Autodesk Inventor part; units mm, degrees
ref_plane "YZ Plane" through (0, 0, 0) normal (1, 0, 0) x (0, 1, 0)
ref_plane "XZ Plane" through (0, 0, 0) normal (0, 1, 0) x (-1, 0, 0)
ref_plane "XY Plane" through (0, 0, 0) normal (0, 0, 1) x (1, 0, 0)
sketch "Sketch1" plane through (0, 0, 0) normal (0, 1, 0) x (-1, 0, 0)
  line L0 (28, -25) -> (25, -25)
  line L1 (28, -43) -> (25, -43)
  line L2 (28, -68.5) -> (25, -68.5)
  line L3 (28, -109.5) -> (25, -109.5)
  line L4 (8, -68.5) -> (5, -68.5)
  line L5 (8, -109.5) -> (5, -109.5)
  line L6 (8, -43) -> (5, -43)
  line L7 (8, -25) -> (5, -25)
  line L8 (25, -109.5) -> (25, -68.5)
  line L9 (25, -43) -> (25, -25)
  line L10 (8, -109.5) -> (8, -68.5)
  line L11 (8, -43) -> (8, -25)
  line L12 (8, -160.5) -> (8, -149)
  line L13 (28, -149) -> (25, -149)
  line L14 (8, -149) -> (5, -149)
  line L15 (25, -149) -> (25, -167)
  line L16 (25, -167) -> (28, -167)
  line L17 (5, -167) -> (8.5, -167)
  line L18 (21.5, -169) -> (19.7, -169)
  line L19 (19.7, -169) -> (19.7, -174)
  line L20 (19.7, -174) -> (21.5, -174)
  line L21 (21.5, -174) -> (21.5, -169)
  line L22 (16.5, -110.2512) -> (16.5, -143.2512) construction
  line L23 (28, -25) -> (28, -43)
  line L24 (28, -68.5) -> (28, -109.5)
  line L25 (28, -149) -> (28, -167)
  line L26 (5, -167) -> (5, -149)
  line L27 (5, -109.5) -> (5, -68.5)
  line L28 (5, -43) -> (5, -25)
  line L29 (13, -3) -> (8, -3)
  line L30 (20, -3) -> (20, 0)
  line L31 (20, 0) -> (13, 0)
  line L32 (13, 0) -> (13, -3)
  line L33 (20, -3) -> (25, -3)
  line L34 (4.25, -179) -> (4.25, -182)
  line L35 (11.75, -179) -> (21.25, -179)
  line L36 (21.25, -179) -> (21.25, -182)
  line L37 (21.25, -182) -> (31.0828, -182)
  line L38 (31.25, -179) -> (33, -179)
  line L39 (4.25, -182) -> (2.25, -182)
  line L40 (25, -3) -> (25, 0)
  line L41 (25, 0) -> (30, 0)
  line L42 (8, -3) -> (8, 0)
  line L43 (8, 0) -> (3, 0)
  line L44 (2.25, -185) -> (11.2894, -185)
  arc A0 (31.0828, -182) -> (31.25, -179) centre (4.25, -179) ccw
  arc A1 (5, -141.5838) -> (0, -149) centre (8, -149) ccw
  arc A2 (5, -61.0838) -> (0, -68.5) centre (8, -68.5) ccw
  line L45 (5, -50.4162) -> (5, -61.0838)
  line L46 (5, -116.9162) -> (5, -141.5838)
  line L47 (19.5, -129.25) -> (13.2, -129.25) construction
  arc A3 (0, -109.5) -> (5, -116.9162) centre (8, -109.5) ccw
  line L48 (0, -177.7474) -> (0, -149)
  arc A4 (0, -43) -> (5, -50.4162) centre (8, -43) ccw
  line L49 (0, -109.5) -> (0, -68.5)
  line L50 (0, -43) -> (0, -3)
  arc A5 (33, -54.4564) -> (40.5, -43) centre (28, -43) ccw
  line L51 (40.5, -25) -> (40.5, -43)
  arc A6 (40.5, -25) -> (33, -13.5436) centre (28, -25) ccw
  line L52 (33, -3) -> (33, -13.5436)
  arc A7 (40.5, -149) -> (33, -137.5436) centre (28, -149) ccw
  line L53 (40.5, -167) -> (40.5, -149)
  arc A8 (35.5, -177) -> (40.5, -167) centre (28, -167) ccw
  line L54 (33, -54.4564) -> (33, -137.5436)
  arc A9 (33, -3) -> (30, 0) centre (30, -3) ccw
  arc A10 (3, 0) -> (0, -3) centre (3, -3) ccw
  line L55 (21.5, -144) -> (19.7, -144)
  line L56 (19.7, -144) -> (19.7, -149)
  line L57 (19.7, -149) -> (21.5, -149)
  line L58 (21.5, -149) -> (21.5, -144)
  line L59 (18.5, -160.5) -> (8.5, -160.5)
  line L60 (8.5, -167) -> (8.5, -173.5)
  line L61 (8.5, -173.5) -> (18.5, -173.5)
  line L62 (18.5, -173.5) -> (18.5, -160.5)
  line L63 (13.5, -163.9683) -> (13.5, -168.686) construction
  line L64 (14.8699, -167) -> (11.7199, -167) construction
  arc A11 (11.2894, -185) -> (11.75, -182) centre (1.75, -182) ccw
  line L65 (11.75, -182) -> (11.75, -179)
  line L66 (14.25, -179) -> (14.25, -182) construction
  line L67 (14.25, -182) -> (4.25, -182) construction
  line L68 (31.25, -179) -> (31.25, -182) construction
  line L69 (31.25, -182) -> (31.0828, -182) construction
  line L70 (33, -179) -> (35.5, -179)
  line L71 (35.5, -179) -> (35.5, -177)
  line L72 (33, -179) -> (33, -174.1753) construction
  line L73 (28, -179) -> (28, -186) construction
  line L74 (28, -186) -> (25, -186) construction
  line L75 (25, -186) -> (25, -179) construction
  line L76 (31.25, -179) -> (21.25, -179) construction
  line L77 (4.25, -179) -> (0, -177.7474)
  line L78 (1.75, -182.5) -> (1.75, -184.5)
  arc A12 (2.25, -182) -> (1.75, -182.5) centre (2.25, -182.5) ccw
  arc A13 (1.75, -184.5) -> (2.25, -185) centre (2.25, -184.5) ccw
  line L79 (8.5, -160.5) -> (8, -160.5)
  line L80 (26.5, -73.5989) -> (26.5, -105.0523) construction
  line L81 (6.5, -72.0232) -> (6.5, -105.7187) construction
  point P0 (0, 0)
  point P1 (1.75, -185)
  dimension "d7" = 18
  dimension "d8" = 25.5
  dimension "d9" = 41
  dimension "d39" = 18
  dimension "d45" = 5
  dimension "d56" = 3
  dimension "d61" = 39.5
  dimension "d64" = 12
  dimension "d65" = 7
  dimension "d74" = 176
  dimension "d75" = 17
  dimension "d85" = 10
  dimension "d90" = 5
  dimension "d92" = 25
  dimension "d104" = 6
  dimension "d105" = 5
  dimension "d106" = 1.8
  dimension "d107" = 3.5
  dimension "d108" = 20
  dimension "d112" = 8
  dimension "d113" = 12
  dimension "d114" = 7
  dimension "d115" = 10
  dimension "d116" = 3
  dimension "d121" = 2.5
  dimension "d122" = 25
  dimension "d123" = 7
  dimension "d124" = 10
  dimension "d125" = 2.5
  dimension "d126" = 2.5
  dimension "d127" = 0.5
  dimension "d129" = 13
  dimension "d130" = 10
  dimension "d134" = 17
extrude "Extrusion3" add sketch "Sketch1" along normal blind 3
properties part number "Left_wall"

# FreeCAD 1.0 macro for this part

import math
import FreeCAD as App
import Part
import Sketcher

V = App.Vector

doc = App.newDocument("Part")
body = doc.addObject("PartDesign::Body", "Body")

sketch1 = doc.addObject("Sketcher::SketchObject", "Sketch")
body.addObject(sketch1)
sketch1.AttachmentSupport = (doc.XZ_Plane, [""])
sketch1.MapMode = "FlatFace"
sketch1.addGeometry([
    Part.LineSegment(V(-13, 0, 0), V(-13, -3, 0)),
    Part.LineSegment(V(-13, -3, 0), V(-8, -3, 0)),
    Part.LineSegment(V(-8, -3, 0), V(-8, 0, 0)),
    Part.LineSegment(V(-8, 0, 0), V(-3, 0, 0)),
    Part.ArcOfCircle(Part.Circle(V(-3, -3, 0), V(0, 0, 1), 3), math.radians(0), math.radians(90)),
    Part.LineSegment(V(0, -3, 0), V(0, -43, 0)),
    Part.ArcOfCircle(Part.Circle(V(-8, -43, 0), V(0, 0, 1), 8), math.radians(-67.975691), math.radians(0)),
    Part.LineSegment(V(-5, -50.4162, 0), V(-5, -61.0838, 0)),
    Part.ArcOfCircle(Part.Circle(V(-8, -68.5, 0), V(0, 0, 1), 8.000001), math.radians(0), math.radians(67.975691)),
    Part.LineSegment(V(0, -68.5, 0), V(0, -109.5, 0)),
    Part.ArcOfCircle(Part.Circle(V(-8, -109.5, 0), V(0, 0, 1), 8), math.radians(-67.975691), math.radians(0)),
    Part.LineSegment(V(-5, -116.9162, 0), V(-5, -141.5838, 0)),
    Part.ArcOfCircle(Part.Circle(V(-8, -149, 0), V(0, 0, 1), 8.000001), math.radians(0), math.radians(67.975691)),
    Part.LineSegment(V(0, -149, 0), V(0, -177.7474, 0)),
    Part.LineSegment(V(0, -177.7474, 0), V(-4.25, -179, 0)),
    Part.LineSegment(V(-4.25, -179, 0), V(-4.25, -182, 0)),
    Part.LineSegment(V(-4.25, -182, 0), V(-2.25, -182, 0)),
    Part.ArcOfCircle(Part.Circle(V(-2.25, -182.5, 0), V(0, 0, 1), 0.5), math.radians(0), math.radians(90)),
    Part.LineSegment(V(-1.75, -182.5, 0), V(-1.75, -184.5, 0)),
    Part.ArcOfCircle(Part.Circle(V(-2.25, -184.5, 0), V(0, 0, 1), 0.5), math.radians(-90), math.radians(0)),
    Part.LineSegment(V(-2.25, -185, 0), V(-11.2894, -185, 0)),
    Part.ArcOfCircle(Part.Circle(V(-1.75, -182, 0), V(0, 0, 1), 10.000008), math.radians(180), math.radians(197.457589)),
    Part.LineSegment(V(-11.75, -182, 0), V(-11.75, -179, 0)),
    Part.LineSegment(V(-11.75, -179, 0), V(-21.25, -179, 0)),
    Part.LineSegment(V(-21.25, -179, 0), V(-21.25, -182, 0)),
    Part.LineSegment(V(-21.25, -182, 0), V(-31.0828, -182, 0)),
    Part.ArcOfCircle(Part.Circle(V(-4.244969, -178.999579, 0), V(0, 0, 1), 27.005031), math.radians(-179.999107), math.radians(-173.620924)),
    Part.LineSegment(V(-31.25, -179, 0), V(-35.5, -179, 0)),
    Part.LineSegment(V(-35.5, -179, 0), V(-35.5, -177, 0)),
    Part.ArcOfCircle(Part.Circle(V(-28, -167, 0), V(0, 0, 1), 12.5), math.radians(180), math.radians(233.130102)),
    Part.LineSegment(V(-40.5, -167, 0), V(-40.5, -149, 0)),
    Part.ArcOfCircle(Part.Circle(V(-28, -149, 0), V(0, 0, 1), 12.5), math.radians(113.57825), math.radians(180)),
    Part.LineSegment(V(-33, -137.5436, 0), V(-33, -54.4564, 0)),
    Part.ArcOfCircle(Part.Circle(V(-28, -43, 0), V(0, 0, 1), 12.499964), math.radians(180), math.radians(246.42175)),
    Part.LineSegment(V(-40.5, -43, 0), V(-40.5, -25, 0)),
    Part.ArcOfCircle(Part.Circle(V(-28, -25, 0), V(0, 0, 1), 12.5), math.radians(113.57825), math.radians(180)),
    Part.LineSegment(V(-33, -13.5436, 0), V(-33, -3, 0)),
    Part.ArcOfCircle(Part.Circle(V(-30, -3, 0), V(0, 0, 1), 3), math.radians(90), math.radians(180)),
    Part.LineSegment(V(-30, 0, 0), V(-25, 0, 0)),
    Part.LineSegment(V(-25, 0, 0), V(-25, -3, 0)),
    Part.LineSegment(V(-25, -3, 0), V(-20, -3, 0)),
    Part.LineSegment(V(-20, -3, 0), V(-20, 0, 0)),
    Part.LineSegment(V(-20, 0, 0), V(-13, 0, 0)),
    Part.LineSegment(V(-8, -149, 0), V(-8, -160.5, 0)),
    Part.LineSegment(V(-8, -160.5, 0), V(-18.5, -160.5, 0)),
    Part.LineSegment(V(-18.5, -160.5, 0), V(-18.5, -173.5, 0)),
    Part.LineSegment(V(-18.5, -173.5, 0), V(-8.5, -173.5, 0)),
    Part.LineSegment(V(-8.5, -173.5, 0), V(-8.5, -167, 0)),
    Part.LineSegment(V(-8.5, -167, 0), V(-5, -167, 0)),
    Part.LineSegment(V(-5, -167, 0), V(-5, -149, 0)),
    Part.LineSegment(V(-5, -149, 0), V(-8, -149, 0)),
    Part.LineSegment(V(-19.7, -169, 0), V(-21.5, -169, 0)),
    Part.LineSegment(V(-21.5, -169, 0), V(-21.5, -174, 0)),
    Part.LineSegment(V(-21.5, -174, 0), V(-19.7, -174, 0)),
    Part.LineSegment(V(-19.7, -174, 0), V(-19.7, -169, 0)),
    Part.LineSegment(V(-19.7, -144, 0), V(-21.5, -144, 0)),
    Part.LineSegment(V(-21.5, -144, 0), V(-21.5, -149, 0)),
    Part.LineSegment(V(-21.5, -149, 0), V(-19.7, -149, 0)),
    Part.LineSegment(V(-19.7, -149, 0), V(-19.7, -144, 0)),
    Part.LineSegment(V(-25, -149, 0), V(-28, -149, 0)),
    Part.LineSegment(V(-28, -149, 0), V(-28, -167, 0)),
    Part.LineSegment(V(-28, -167, 0), V(-25, -167, 0)),
    Part.LineSegment(V(-25, -167, 0), V(-25, -149, 0)),
    Part.LineSegment(V(-5, -68.5, 0), V(-8, -68.5, 0)),
    Part.LineSegment(V(-8, -68.5, 0), V(-8, -109.5, 0)),
    Part.LineSegment(V(-8, -109.5, 0), V(-5, -109.5, 0)),
    Part.LineSegment(V(-5, -109.5, 0), V(-5, -68.5, 0)),
    Part.LineSegment(V(-8, -25, 0), V(-8, -43, 0)),
    Part.LineSegment(V(-8, -43, 0), V(-5, -43, 0)),
    Part.LineSegment(V(-5, -43, 0), V(-5, -25, 0)),
    Part.LineSegment(V(-5, -25, 0), V(-8, -25, 0)),
    Part.LineSegment(V(-25, -68.5, 0), V(-28, -68.5, 0)),
    Part.LineSegment(V(-28, -68.5, 0), V(-28, -109.5, 0)),
    Part.LineSegment(V(-28, -109.5, 0), V(-25, -109.5, 0)),
    Part.LineSegment(V(-25, -109.5, 0), V(-25, -68.5, 0)),
    Part.LineSegment(V(-25, -25, 0), V(-28, -25, 0)),
    Part.LineSegment(V(-28, -25, 0), V(-28, -43, 0)),
    Part.LineSegment(V(-28, -43, 0), V(-25, -43, 0)),
    Part.LineSegment(V(-25, -43, 0), V(-25, -25, 0)),
], False)
sketch1.addConstraint([
    Sketcher.Constraint("Coincident", 0, 2, 1, 1),
    Sketcher.Constraint("Coincident", 1, 2, 2, 1),
    Sketcher.Constraint("Coincident", 2, 2, 3, 1),
    Sketcher.Constraint("Tangent", 3, 2, 4, 2),
    Sketcher.Constraint("Tangent", 4, 1, 5, 1),
    Sketcher.Constraint("Tangent", 5, 2, 6, 2),
    Sketcher.Constraint("Coincident", 6, 1, 7, 1),
    Sketcher.Constraint("Coincident", 7, 2, 8, 2),
    Sketcher.Constraint("Tangent", 8, 1, 9, 1),
    Sketcher.Constraint("Tangent", 9, 2, 10, 2),
    Sketcher.Constraint("Coincident", 10, 1, 11, 1),
    Sketcher.Constraint("Coincident", 11, 2, 12, 2),
    Sketcher.Constraint("Tangent", 12, 1, 13, 1),
    Sketcher.Constraint("Coincident", 13, 2, 14, 1),
    Sketcher.Constraint("Coincident", 14, 2, 15, 1),
    Sketcher.Constraint("Coincident", 15, 2, 16, 1),
    Sketcher.Constraint("Tangent", 16, 2, 17, 2),
    Sketcher.Constraint("Tangent", 17, 1, 18, 1),
    Sketcher.Constraint("Tangent", 18, 2, 19, 2),
    Sketcher.Constraint("Tangent", 19, 1, 20, 1),
    Sketcher.Constraint("Coincident", 20, 2, 21, 2),
    Sketcher.Constraint("Tangent", 21, 1, 22, 1),
    Sketcher.Constraint("Coincident", 22, 2, 23, 1),
    Sketcher.Constraint("Coincident", 23, 2, 24, 1),
    Sketcher.Constraint("Coincident", 24, 2, 25, 1),
    Sketcher.Constraint("Coincident", 25, 2, 26, 2),
    Sketcher.Constraint("Coincident", 26, 1, 27, 1),
    Sketcher.Constraint("Coincident", 27, 2, 28, 1),
    Sketcher.Constraint("Coincident", 28, 2, 29, 2),
    Sketcher.Constraint("Tangent", 29, 1, 30, 1),
    Sketcher.Constraint("Tangent", 30, 2, 31, 2),
    Sketcher.Constraint("Coincident", 31, 1, 32, 1),
    Sketcher.Constraint("Coincident", 32, 2, 33, 2),
    Sketcher.Constraint("Tangent", 33, 1, 34, 1),
    Sketcher.Constraint("Tangent", 34, 2, 35, 2),
    Sketcher.Constraint("Coincident", 35, 1, 36, 1),
    Sketcher.Constraint("Tangent", 36, 2, 37, 2),
    Sketcher.Constraint("Tangent", 37, 1, 38, 1),
    Sketcher.Constraint("Coincident", 38, 2, 39, 1),
    Sketcher.Constraint("Coincident", 39, 2, 40, 1),
    Sketcher.Constraint("Coincident", 40, 2, 41, 1),
    Sketcher.Constraint("Coincident", 41, 2, 42, 1),
    Sketcher.Constraint("Coincident", 42, 2, 0, 1),
    Sketcher.Constraint("Coincident", 43, 2, 44, 1),
    Sketcher.Constraint("Coincident", 44, 2, 45, 1),
    Sketcher.Constraint("Coincident", 45, 2, 46, 1),
    Sketcher.Constraint("Coincident", 46, 2, 47, 1),
    Sketcher.Constraint("Coincident", 47, 2, 48, 1),
    Sketcher.Constraint("Coincident", 48, 2, 49, 1),
    Sketcher.Constraint("Coincident", 49, 2, 50, 1),
    Sketcher.Constraint("Coincident", 50, 2, 43, 1),
    Sketcher.Constraint("Coincident", 51, 2, 52, 1),
    Sketcher.Constraint("Coincident", 52, 2, 53, 1),
    Sketcher.Constraint("Coincident", 53, 2, 54, 1),
    Sketcher.Constraint("Coincident", 54, 2, 51, 1),
    Sketcher.Constraint("Coincident", 55, 2, 56, 1),
    Sketcher.Constraint("Coincident", 56, 2, 57, 1),
    Sketcher.Constraint("Coincident", 57, 2, 58, 1),
    Sketcher.Constraint("Coincident", 58, 2, 55, 1),
    Sketcher.Constraint("Coincident", 59, 2, 60, 1),
    Sketcher.Constraint("Coincident", 60, 2, 61, 1),
    Sketcher.Constraint("Coincident", 61, 2, 62, 1),
    Sketcher.Constraint("Coincident", 62, 2, 59, 1),
    Sketcher.Constraint("Coincident", 63, 2, 64, 1),
    Sketcher.Constraint("Coincident", 64, 2, 65, 1),
    Sketcher.Constraint("Coincident", 65, 2, 66, 1),
    Sketcher.Constraint("Coincident", 66, 2, 63, 1),
    Sketcher.Constraint("Coincident", 67, 2, 68, 1),
    Sketcher.Constraint("Coincident", 68, 2, 69, 1),
    Sketcher.Constraint("Coincident", 69, 2, 70, 1),
    Sketcher.Constraint("Coincident", 70, 2, 67, 1),
    Sketcher.Constraint("Coincident", 71, 2, 72, 1),
    Sketcher.Constraint("Coincident", 72, 2, 73, 1),
    Sketcher.Constraint("Coincident", 73, 2, 74, 1),
    Sketcher.Constraint("Coincident", 74, 2, 71, 1),
    Sketcher.Constraint("Coincident", 75, 2, 76, 1),
    Sketcher.Constraint("Coincident", 76, 2, 77, 1),
    Sketcher.Constraint("Coincident", 77, 2, 78, 1),
    Sketcher.Constraint("Coincident", 78, 2, 75, 1),
    Sketcher.Constraint("Vertical", 0),
    Sketcher.Constraint("Horizontal", 1),
    Sketcher.Constraint("Vertical", 2),
    Sketcher.Constraint("Horizontal", 3),
    Sketcher.Constraint("Vertical", 5),
    Sketcher.Constraint("Vertical", 7),
    Sketcher.Constraint("Vertical", 9),
    Sketcher.Constraint("Vertical", 11),
    Sketcher.Constraint("Vertical", 13),
    Sketcher.Constraint("Vertical", 15),
    Sketcher.Constraint("Horizontal", 16),
    Sketcher.Constraint("Vertical", 18),
    Sketcher.Constraint("Horizontal", 20),
    Sketcher.Constraint("Vertical", 22),
    Sketcher.Constraint("Horizontal", 23),
    Sketcher.Constraint("Vertical", 24),
    Sketcher.Constraint("Horizontal", 25),
    Sketcher.Constraint("Horizontal", 27),
    Sketcher.Constraint("Vertical", 28),
    Sketcher.Constraint("Vertical", 30),
    Sketcher.Constraint("Vertical", 32),
    Sketcher.Constraint("Vertical", 34),
    Sketcher.Constraint("Vertical", 36),
    Sketcher.Constraint("Horizontal", 38),
    Sketcher.Constraint("Vertical", 39),
    Sketcher.Constraint("Horizontal", 40),
    Sketcher.Constraint("Vertical", 41),
    Sketcher.Constraint("Horizontal", 42),
    Sketcher.Constraint("Vertical", 43),
    Sketcher.Constraint("Horizontal", 44),
    Sketcher.Constraint("Vertical", 45),
    Sketcher.Constraint("Horizontal", 46),
    Sketcher.Constraint("Vertical", 47),
    Sketcher.Constraint("Horizontal", 48),
    Sketcher.Constraint("Vertical", 49),
    Sketcher.Constraint("Horizontal", 50),
    Sketcher.Constraint("Horizontal", 51),
    Sketcher.Constraint("Vertical", 52),
    Sketcher.Constraint("Horizontal", 53),
    Sketcher.Constraint("Vertical", 54),
    Sketcher.Constraint("Horizontal", 55),
    Sketcher.Constraint("Vertical", 56),
    Sketcher.Constraint("Horizontal", 57),
    Sketcher.Constraint("Vertical", 58),
    Sketcher.Constraint("Horizontal", 59),
    Sketcher.Constraint("Vertical", 60),
    Sketcher.Constraint("Horizontal", 61),
    Sketcher.Constraint("Vertical", 62),
    Sketcher.Constraint("Horizontal", 63),
    Sketcher.Constraint("Vertical", 64),
    Sketcher.Constraint("Horizontal", 65),
    Sketcher.Constraint("Vertical", 66),
    Sketcher.Constraint("Vertical", 67),
    Sketcher.Constraint("Horizontal", 68),
    Sketcher.Constraint("Vertical", 69),
    Sketcher.Constraint("Horizontal", 70),
    Sketcher.Constraint("Horizontal", 71),
    Sketcher.Constraint("Vertical", 72),
    Sketcher.Constraint("Horizontal", 73),
    Sketcher.Constraint("Vertical", 74),
    Sketcher.Constraint("Horizontal", 75),
    Sketcher.Constraint("Vertical", 76),
    Sketcher.Constraint("Horizontal", 77),
    Sketcher.Constraint("Vertical", 78),
    Sketcher.Constraint("Coincident", 50, 2, 12, 3),
    Sketcher.Constraint("Coincident", 59, 2, 31, 3),
    Sketcher.Constraint("Coincident", 60, 2, 29, 3),
    Sketcher.Constraint("Coincident", 63, 2, 8, 3),
    Sketcher.Constraint("Coincident", 64, 2, 10, 3),
    Sketcher.Constraint("Coincident", 67, 2, 6, 3),
    Sketcher.Constraint("Coincident", 75, 2, 35, 3),
    Sketcher.Constraint("Coincident", 76, 2, 33, 3),
    Sketcher.Constraint("Equal", 6, 8),
    Sketcher.Constraint("Equal", 10, 12),
    Sketcher.Constraint("Equal", 17, 19),
    Sketcher.Constraint("Equal", 31, 33),
    Sketcher.Constraint("Equal", 4, 37),
    Sketcher.Constraint("PointOnObject", 2, 2, -1),
    Sketcher.Constraint("PointOnObject", 4, 1, -2),
    Sketcher.Constraint("PointOnObject", 8, 1, -2),
    Sketcher.Constraint("PointOnObject", 12, 1, -2),
    Sketcher.Constraint("PointOnObject", 37, 1, -1),
    Sketcher.Constraint("PointOnObject", 41, 2, -1),
    Sketcher.Constraint("Horizontal", 12, 3, 31, 3),
    Sketcher.Constraint("Horizontal", 6, 3, 33, 3),
    Sketcher.Constraint("Horizontal", 37, 3, 0, 2),
    Sketcher.Constraint("Horizontal", 21, 3, 15, 2),
    Sketcher.Constraint("Horizontal", 14, 2, 22, 2),
    Sketcher.Constraint("Horizontal", 21, 1, 24, 2),
    Sketcher.Constraint("Horizontal", 23, 2, 26, 1),
    Sketcher.Constraint("Horizontal", 36, 2, 39, 2),
    Sketcher.Constraint("Horizontal", 29, 1, 47, 2),
    Sketcher.Constraint("Horizontal", 50, 2, 56, 2),
    Sketcher.Constraint("Horizontal", 34, 2, 69, 2),
    Sketcher.Constraint("Horizontal", 66, 2, 71, 2),
    Sketcher.Constraint("Horizontal", 65, 2, 72, 2),
    Sketcher.Constraint("Vertical", 31, 3, 33, 3),
    Sketcher.Constraint("Vertical", 12, 3, 1, 2),
    Sketcher.Constraint("Vertical", 7, 2, 10, 1),
    Sketcher.Constraint("Vertical", 21, 3, 17, 1),
    Sketcher.Constraint("Vertical", 32, 2, 35, 1),
    Sketcher.Constraint("Vertical", 11, 2, 48, 2),
    Sketcher.Constraint("Vertical", 52, 2, 55, 2),
    Sketcher.Constraint("Vertical", 54, 2, 57, 2),
    Sketcher.Constraint("Vertical", 39, 2, 61, 2),
    Sketcher.Constraint("Vertical", 49, 2, 65, 2),
    Sketcher.Constraint("Vertical", 66, 2, 68, 2),
    Sketcher.Constraint("Vertical", 60, 2, 71, 2),
    Sketcher.Constraint("Vertical", 62, 2, 73, 2),
    Sketcher.Constraint("Vertical", 74, 2, 77, 2),
    Sketcher.Constraint("Equal", 1, 3),
    Sketcher.Constraint("Equal", 3, 38),
    Sketcher.Constraint("Equal", 38, 40),
    Sketcher.Constraint("Equal", 50, 59),
    Sketcher.Constraint("Equal", 77, 0),
    Sketcher.Constraint("Equal", 2, 15),
    Sketcher.Constraint("Equal", 16, 18),
    Sketcher.Constraint("Equal", 18, 28),
    Sketcher.Constraint("Equal", 30, 34),
    Sketcher.Constraint("Equal", 40, 52),
    Sketcher.Constraint("Equal", 54, 56),
    Sketcher.Constraint("Radius", 4, 3.0),
    Sketcher.Constraint("Radius", 6, 8.0),
    Sketcher.Constraint("Radius", 21, 10.0),
    Sketcher.Constraint("Radius", 17, 0.5),
    Sketcher.Constraint("Radius", 29, 12.5),
    Sketcher.Constraint("DistanceX", 42, 1, 42, 2, 7.0),
    Sketcher.Constraint("DistanceX", 46, 1, 46, 2, 10.0),
    Sketcher.Constraint("DistanceY", 9, 2, 9, 1, 41.0),
    Sketcher.Constraint("DistanceY", 30, 1, 30, 2, 18.0),
    Sketcher.Constraint("DistanceY", 45, 2, 45, 1, 13.0),
    Sketcher.Constraint("DistanceX", 48, 1, 48, 2, 3.5),
    Sketcher.Constraint("DistanceX", 51, 2, 51, 1, 1.8),
    Sketcher.Constraint("DistanceY", 35, 3, -1, 1, 25.0),
    Sketcher.Constraint("DistanceX", 16, 1, 16, 2, 2.0),
    Sketcher.Constraint("DistanceX", 23, 2, 23, 1, 9.5),
    Sketcher.Constraint("DistanceY", 43, 2, 43, 1, 11.5),
    Sketcher.Constraint("DistanceY", 12, 3, -1, 1, 149.0),
    Sketcher.Constraint("DistanceY", 21, 3, -1, 1, 182.0),
    Sketcher.Constraint("DistanceY", 51, 2, -1, 1, 169.0),
    Sketcher.Constraint("Radius", 26, 27.005),
    Sketcher.Constraint("DistanceX", 27, 2, 27, 1, 4.25),
    Sketcher.Constraint("DistanceY", 8, 3, -1, 1, 68.5),
    Sketcher.Constraint("DistanceX", 51, 2, -1, 1, 21.5),
    Sketcher.Constraint("DistanceX", 17, 3, -1, 1, 2.25),
    Sketcher.Constraint("DistanceX", 25, 2, 25, 1, 9.8328),
    Sketcher.Constraint("DistanceY", 13, 2, 13, 1, 28.7474),
])
pad1 = doc.addObject("PartDesign::Pad", "Pad")
body.addObject(pad1)
pad1.Profile = sketch1
pad1.Length = 3
pad1.Reversed = True

doc.recompute()
